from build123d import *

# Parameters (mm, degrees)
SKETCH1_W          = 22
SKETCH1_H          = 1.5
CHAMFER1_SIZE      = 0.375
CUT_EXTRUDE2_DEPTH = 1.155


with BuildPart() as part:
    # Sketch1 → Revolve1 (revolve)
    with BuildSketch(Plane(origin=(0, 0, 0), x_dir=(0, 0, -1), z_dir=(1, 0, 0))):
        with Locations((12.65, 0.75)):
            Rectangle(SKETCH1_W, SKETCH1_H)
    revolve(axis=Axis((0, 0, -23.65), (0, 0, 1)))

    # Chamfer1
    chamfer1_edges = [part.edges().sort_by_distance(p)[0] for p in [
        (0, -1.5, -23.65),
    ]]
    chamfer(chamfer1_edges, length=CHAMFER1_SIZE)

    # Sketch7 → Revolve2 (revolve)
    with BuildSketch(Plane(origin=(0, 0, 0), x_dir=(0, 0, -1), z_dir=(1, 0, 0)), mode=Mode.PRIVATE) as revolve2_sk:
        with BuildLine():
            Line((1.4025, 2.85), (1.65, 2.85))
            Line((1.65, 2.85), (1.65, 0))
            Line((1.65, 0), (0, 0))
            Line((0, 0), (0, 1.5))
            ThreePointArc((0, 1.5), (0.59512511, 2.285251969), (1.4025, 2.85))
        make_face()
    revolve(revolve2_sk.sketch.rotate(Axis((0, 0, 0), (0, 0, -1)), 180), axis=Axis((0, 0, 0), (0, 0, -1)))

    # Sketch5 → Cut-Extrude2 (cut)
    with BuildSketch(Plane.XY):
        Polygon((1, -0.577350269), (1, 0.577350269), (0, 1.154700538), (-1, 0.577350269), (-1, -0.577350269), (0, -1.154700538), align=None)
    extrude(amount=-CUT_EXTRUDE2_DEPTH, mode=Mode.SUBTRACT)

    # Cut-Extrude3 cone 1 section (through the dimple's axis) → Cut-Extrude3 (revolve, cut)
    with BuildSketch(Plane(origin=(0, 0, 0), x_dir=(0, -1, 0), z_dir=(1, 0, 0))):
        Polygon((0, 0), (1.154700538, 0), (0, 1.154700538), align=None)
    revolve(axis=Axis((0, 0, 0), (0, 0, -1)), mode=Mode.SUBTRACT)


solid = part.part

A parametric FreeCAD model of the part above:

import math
import FreeCAD as App
import Part
import Sketcher
from FreeCAD import Vector
Q = App.Units.Quantity


def edges_at(feature, points):
    """Names of the edges that pass closest to the given points."""
    edges = feature.Shape.Edges
    near = lambda p: min(range(len(edges)), key=lambda i: edges[i].distToShape(Part.Vertex(*p))[0])
    return sorted({f"Edge{near(p) + 1}" for p in points})

doc = App.newDocument("Part")
body = doc.addObject("PartDesign::Body", "Body")

# Sketch on YZ plane
sketch1 = body.newObject("Sketcher::SketchObject", "Sketch")
sketch1.AttachmentSupport = (doc.getObject("YZ_Plane"), [""])
sketch1.MapMode = "FlatFace"
sketch1.addGeometry([
    Part.LineSegment(Vector(1.5, -1.65, 0), Vector(0, -1.65, 0)),
    Part.LineSegment(Vector(0, -1.65, 0), Vector(0, -23.65, 0)),
    Part.LineSegment(Vector(0, -23.65, 0), Vector(1.5, -23.65, 0)),
    Part.LineSegment(Vector(1.5, -23.65, 0), Vector(1.5, -1.65, 0)),
], False)
sketch1.addConstraint([
    Sketcher.Constraint("Coincident", 0, 2, 1, 1),
    Sketcher.Constraint("Coincident", 1, 2, 2, 1),
    Sketcher.Constraint("Coincident", 2, 2, 3, 1),
    Sketcher.Constraint("Coincident", 3, 2, 0, 1),
    Sketcher.Constraint("Horizontal", 0),
    Sketcher.Constraint("Vertical", 1),
    Sketcher.Constraint("Horizontal", 2),
    Sketcher.Constraint("Vertical", 3),
    Sketcher.Constraint("PointOnObject", 0, 2, -2),
    Sketcher.Constraint("DistanceY", 1, 2, 1, 1, 22.0),
    Sketcher.Constraint("DistanceX", 0, 2, 0, 1, 1.5),
    Sketcher.Constraint("DistanceY", 0, 2, -1, 1, 1.65),
])
revolution = body.newObject("PartDesign::Revolution", "Revolution")
revolution.Profile = sketch1
revolution.ReferenceAxis = (sketch1, ["V_Axis"])
revolution.Angle = 360
doc.recompute()

chamfer = body.newObject("PartDesign::Chamfer", "Chamfer")
chamfer.Base = (revolution, edges_at(revolution, [(0, -1.5, -23.65)]))
chamfer.Size = 0.375

# Sketch on YZ plane
sketch2 = body.newObject("Sketcher::SketchObject", "Sketch001")
sketch2.AttachmentSupport = (doc.getObject("YZ_Plane"), [""])
sketch2.MapMode = "FlatFace"
sketch2.addGeometry([
    Part.LineSegment(Vector(2.85, -1.65, 0), Vector(2.85, -1.4025, 0)),  # 0
    Part.ArcOfCircle(Part.Circle(Vector(0, -2.794833, 0), Vector(0, 0, 1), 3.171922), math.radians(26.03726), math.radians(61.777335)),  # 1
    Part.LineSegment(Vector(1.5, 0, 0), Vector(0, 0, 0)),  # 2
    Part.LineSegment(Vector(0, 0, 0), Vector(0, -1.65, 0)),  # 3
    Part.LineSegment(Vector(0, -1.65, 0), Vector(2.85, -1.65, 0)),  # 4
], False)
sketch2.addConstraint([
    Sketcher.Constraint("Coincident", 0, 2, 1, 1),
    Sketcher.Constraint("Coincident", 1, 2, 2, 1),
    Sketcher.Constraint("Coincident", 2, 2, 3, 1),
    Sketcher.Constraint("Coincident", 3, 2, 4, 1),
    Sketcher.Constraint("Coincident", 4, 2, 0, 1),
    Sketcher.Constraint("Vertical", 0),
    Sketcher.Constraint("Horizontal", 2),
    Sketcher.Constraint("Vertical", 3),
    Sketcher.Constraint("Horizontal", 4),
    Sketcher.Constraint("Coincident", 2, 2, -1, 1),
    Sketcher.Constraint("PointOnObject", 1, 3, -2),
    Sketcher.Constraint("DistanceX", 2, 2, 2, 1, 1.5),
    Sketcher.Constraint("DistanceX", 4, 1, 4, 2, 2.85),
    Sketcher.Constraint("DistanceY", 3, 2, 3, 1, 1.65),
    Sketcher.Constraint("DistanceY", 0, 1, 0, 2, 0.2475),
])
revolution2 = body.newObject("PartDesign::Revolution", "Revolution001")
revolution2.Profile = sketch2
revolution2.ReferenceAxis = (sketch2, ["V_Axis"])
revolution2.Angle = 360

# Sketch on XY plane
sketch3 = body.newObject("Sketcher::SketchObject", "Sketch002")
sketch3.AttachmentSupport = (doc.getObject("XY_Plane"), [""])
sketch3.MapMode = "FlatFace"
sketch3.addGeometry([
    Part.LineSegment(Vector(1, -0.57735, 0), Vector(1, 0.57735, 0)),  # 0
    Part.LineSegment(Vector(1, 0.57735, 0), Vector(0, 1.154701, 0)),  # 1
    Part.LineSegment(Vector(0, 1.154701, 0), Vector(-1, 0.57735, 0)),  # 2
    Part.LineSegment(Vector(-1, 0.57735, 0), Vector(-1, -0.57735, 0)),  # 3
    Part.LineSegment(Vector(-1, -0.57735, 0), Vector(0, -1.154701, 0)),  # 4
    Part.LineSegment(Vector(0, -1.154701, 0), Vector(1, -0.57735, 0)),  # 5
], False)
sketch3.addConstraint([
    Sketcher.Constraint("Coincident", 0, 2, 1, 1),
    Sketcher.Constraint("Coincident", 1, 2, 2, 1),
    Sketcher.Constraint("Coincident", 2, 2, 3, 1),
    Sketcher.Constraint("Coincident", 3, 2, 4, 1),
    Sketcher.Constraint("Coincident", 4, 2, 5, 1),
    Sketcher.Constraint("Coincident", 5, 2, 0, 1),
    Sketcher.Constraint("Vertical", 0),
    Sketcher.Constraint("Vertical", 3),
    Sketcher.Constraint("Symmetric", 0, 2, 3, 2, -1, 1),
    Sketcher.Constraint("Symmetric", 1, 2, 4, 2, -1, 1),
    Sketcher.Constraint("PointOnObject", 1, 2, -2),
    Sketcher.Constraint("Parallel", 2, 5),
    Sketcher.Constraint("Horizontal", 0, 2, 2, 2),
    Sketcher.Constraint("Angle", 1, Q("150 deg")),
    Sketcher.Constraint("DistanceX", -1, 1, 0, 2, 1.0),
    Sketcher.Constraint("DistanceY", 0, 1, 0, 2, 1.154701),
])
pocket1 = body.newObject("PartDesign::Pocket", "Pocket")
pocket1.Profile = sketch3
pocket1.Length = 1.155

# Sketch on YZ plane
sketch4 = body.newObject("Sketcher::SketchObject", "Sketch003")
sketch4.AttachmentSupport = (doc.getObject("YZ_Plane"), [""])
sketch4.MapMode = "FlatFace"
sketch4.addGeometry([
    Part.LineSegment(Vector(0, 0, 0), Vector(-1.154701, 0, 0)),
    Part.LineSegment(Vector(-1.154701, 0, 0), Vector(0, -1.154701, 0)),
    Part.LineSegment(Vector(0, -1.154701, 0), Vector(0, 0, 0)),
], False)
sketch4.addConstraint([
    Sketcher.Constraint("Coincident", 0, 2, 1, 1),
    Sketcher.Constraint("Coincident", 1, 2, 2, 1),
    Sketcher.Constraint("Coincident", 2, 2, 0, 1),
    Sketcher.Constraint("Horizontal", 0),
    Sketcher.Constraint("Vertical", 2),
    Sketcher.Constraint("Coincident", 2, 2, -1, 1),
    Sketcher.Constraint("Equal", 0, 2),
    Sketcher.Constraint("DistanceX", 0, 2, 0, 1, 1.154701),
])
groove = body.newObject("PartDesign::Groove", "Groove")
groove.Profile = sketch4
groove.ReferenceAxis = (sketch4, ["V_Axis"])
groove.Angle = 360

doc.recompute()
